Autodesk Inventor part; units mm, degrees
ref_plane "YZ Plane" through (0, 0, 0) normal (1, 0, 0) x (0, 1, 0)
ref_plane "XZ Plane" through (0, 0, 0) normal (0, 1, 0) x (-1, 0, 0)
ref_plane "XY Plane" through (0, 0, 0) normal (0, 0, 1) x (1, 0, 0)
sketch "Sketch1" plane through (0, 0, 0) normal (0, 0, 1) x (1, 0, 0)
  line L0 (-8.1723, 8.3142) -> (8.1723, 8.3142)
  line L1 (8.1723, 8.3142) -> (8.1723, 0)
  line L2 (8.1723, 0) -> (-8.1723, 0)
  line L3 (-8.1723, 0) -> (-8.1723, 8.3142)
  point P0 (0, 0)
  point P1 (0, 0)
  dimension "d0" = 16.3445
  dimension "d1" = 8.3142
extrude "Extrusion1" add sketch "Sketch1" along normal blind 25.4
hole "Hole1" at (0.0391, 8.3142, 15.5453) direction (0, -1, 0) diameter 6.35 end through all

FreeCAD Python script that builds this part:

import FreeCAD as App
import Part
import Sketcher

V = App.Vector
Q = App.Units.Quantity


def add_polygon(sketch, points):
    """Adds a closed chain of lines whose ends are joined by coincident constraints."""
    first, n = sketch.GeometryCount, len(points)
    for a, b in zip(points, points[1:] + points[:1]):
        sketch.addGeometry(Part.LineSegment(App.Vector(*a, 0), App.Vector(*b, 0)), False)
    for i in range(n):
        sketch.addConstraint(Sketcher.Constraint("Coincident", first + i, 2, first + (i + 1) % n, 1))

doc = App.newDocument("Part")
body = doc.addObject("PartDesign::Body", "Body")

# Sketch on XY plane
sketch1 = body.newObject("Sketcher::SketchObject", "Sketch")
sketch1.AttachmentSupport = (doc.getObject("XY_Plane"), [""])
sketch1.MapMode = "FlatFace"
add_polygon(sketch1, [(8, 8), (-8, 8), (-8, 0), (8, 0)])  # lines 0-3
sketch1.addConstraint(Sketcher.Constraint("Horizontal", 0))
sketch1.addConstraint(Sketcher.Constraint("Vertical", 1))
sketch1.addConstraint(Sketcher.Constraint("Horizontal", 2))
sketch1.addConstraint(Sketcher.Constraint("Vertical", 3))
sketch1.addConstraint(Sketcher.Constraint("Symmetric", 1, 2, 2, 2, -1, 1))
sketch1.addConstraint(Sketcher.Constraint("DistanceX", 0, 2, 0, 1, Q("0.6435 in")))
sketch1.addConstraint(Sketcher.Constraint("DistanceY", 1, 2, 1, 1, 8.3142))
pad1 = body.newObject("PartDesign::Pad", "Pad")
pad1.Profile = sketch1
pad1.Length = Q("1 in")

# Sketch on XZ plane
sketch2 = body.newObject("Sketcher::SketchObject", "Sketch001")
sketch2.AttachmentSupport = (doc.getObject("XZ_Plane"), [""])
sketch2.MapMode = "FlatFace"
sketch2.AttachmentOffset = App.Placement(V(0, 0, -8.3142), App.Rotation())
sketch2.addGeometry(Part.Circle(V(0, 15.5, 0), V(0, 0, 1), 3.2), False)
sketch2.addConstraint(Sketcher.Constraint("Diameter", 0, Q("0.25 in")))
sketch2.addConstraint(Sketcher.Constraint("DistanceX", -1, 1, 0, 3, 0.039))
sketch2.addConstraint(Sketcher.Constraint("DistanceY", -1, 1, 0, 3, 15.5453))
doc.recompute()
hole = body.newObject("PartDesign::Hole", "Hole")
hole.Profile = sketch2
hole.ThreadType = "None"
hole.Diameter = Q("0.25 in")
hole.DepthType = "ThroughAll"
hole.Reversed = True

doc.recompute()
